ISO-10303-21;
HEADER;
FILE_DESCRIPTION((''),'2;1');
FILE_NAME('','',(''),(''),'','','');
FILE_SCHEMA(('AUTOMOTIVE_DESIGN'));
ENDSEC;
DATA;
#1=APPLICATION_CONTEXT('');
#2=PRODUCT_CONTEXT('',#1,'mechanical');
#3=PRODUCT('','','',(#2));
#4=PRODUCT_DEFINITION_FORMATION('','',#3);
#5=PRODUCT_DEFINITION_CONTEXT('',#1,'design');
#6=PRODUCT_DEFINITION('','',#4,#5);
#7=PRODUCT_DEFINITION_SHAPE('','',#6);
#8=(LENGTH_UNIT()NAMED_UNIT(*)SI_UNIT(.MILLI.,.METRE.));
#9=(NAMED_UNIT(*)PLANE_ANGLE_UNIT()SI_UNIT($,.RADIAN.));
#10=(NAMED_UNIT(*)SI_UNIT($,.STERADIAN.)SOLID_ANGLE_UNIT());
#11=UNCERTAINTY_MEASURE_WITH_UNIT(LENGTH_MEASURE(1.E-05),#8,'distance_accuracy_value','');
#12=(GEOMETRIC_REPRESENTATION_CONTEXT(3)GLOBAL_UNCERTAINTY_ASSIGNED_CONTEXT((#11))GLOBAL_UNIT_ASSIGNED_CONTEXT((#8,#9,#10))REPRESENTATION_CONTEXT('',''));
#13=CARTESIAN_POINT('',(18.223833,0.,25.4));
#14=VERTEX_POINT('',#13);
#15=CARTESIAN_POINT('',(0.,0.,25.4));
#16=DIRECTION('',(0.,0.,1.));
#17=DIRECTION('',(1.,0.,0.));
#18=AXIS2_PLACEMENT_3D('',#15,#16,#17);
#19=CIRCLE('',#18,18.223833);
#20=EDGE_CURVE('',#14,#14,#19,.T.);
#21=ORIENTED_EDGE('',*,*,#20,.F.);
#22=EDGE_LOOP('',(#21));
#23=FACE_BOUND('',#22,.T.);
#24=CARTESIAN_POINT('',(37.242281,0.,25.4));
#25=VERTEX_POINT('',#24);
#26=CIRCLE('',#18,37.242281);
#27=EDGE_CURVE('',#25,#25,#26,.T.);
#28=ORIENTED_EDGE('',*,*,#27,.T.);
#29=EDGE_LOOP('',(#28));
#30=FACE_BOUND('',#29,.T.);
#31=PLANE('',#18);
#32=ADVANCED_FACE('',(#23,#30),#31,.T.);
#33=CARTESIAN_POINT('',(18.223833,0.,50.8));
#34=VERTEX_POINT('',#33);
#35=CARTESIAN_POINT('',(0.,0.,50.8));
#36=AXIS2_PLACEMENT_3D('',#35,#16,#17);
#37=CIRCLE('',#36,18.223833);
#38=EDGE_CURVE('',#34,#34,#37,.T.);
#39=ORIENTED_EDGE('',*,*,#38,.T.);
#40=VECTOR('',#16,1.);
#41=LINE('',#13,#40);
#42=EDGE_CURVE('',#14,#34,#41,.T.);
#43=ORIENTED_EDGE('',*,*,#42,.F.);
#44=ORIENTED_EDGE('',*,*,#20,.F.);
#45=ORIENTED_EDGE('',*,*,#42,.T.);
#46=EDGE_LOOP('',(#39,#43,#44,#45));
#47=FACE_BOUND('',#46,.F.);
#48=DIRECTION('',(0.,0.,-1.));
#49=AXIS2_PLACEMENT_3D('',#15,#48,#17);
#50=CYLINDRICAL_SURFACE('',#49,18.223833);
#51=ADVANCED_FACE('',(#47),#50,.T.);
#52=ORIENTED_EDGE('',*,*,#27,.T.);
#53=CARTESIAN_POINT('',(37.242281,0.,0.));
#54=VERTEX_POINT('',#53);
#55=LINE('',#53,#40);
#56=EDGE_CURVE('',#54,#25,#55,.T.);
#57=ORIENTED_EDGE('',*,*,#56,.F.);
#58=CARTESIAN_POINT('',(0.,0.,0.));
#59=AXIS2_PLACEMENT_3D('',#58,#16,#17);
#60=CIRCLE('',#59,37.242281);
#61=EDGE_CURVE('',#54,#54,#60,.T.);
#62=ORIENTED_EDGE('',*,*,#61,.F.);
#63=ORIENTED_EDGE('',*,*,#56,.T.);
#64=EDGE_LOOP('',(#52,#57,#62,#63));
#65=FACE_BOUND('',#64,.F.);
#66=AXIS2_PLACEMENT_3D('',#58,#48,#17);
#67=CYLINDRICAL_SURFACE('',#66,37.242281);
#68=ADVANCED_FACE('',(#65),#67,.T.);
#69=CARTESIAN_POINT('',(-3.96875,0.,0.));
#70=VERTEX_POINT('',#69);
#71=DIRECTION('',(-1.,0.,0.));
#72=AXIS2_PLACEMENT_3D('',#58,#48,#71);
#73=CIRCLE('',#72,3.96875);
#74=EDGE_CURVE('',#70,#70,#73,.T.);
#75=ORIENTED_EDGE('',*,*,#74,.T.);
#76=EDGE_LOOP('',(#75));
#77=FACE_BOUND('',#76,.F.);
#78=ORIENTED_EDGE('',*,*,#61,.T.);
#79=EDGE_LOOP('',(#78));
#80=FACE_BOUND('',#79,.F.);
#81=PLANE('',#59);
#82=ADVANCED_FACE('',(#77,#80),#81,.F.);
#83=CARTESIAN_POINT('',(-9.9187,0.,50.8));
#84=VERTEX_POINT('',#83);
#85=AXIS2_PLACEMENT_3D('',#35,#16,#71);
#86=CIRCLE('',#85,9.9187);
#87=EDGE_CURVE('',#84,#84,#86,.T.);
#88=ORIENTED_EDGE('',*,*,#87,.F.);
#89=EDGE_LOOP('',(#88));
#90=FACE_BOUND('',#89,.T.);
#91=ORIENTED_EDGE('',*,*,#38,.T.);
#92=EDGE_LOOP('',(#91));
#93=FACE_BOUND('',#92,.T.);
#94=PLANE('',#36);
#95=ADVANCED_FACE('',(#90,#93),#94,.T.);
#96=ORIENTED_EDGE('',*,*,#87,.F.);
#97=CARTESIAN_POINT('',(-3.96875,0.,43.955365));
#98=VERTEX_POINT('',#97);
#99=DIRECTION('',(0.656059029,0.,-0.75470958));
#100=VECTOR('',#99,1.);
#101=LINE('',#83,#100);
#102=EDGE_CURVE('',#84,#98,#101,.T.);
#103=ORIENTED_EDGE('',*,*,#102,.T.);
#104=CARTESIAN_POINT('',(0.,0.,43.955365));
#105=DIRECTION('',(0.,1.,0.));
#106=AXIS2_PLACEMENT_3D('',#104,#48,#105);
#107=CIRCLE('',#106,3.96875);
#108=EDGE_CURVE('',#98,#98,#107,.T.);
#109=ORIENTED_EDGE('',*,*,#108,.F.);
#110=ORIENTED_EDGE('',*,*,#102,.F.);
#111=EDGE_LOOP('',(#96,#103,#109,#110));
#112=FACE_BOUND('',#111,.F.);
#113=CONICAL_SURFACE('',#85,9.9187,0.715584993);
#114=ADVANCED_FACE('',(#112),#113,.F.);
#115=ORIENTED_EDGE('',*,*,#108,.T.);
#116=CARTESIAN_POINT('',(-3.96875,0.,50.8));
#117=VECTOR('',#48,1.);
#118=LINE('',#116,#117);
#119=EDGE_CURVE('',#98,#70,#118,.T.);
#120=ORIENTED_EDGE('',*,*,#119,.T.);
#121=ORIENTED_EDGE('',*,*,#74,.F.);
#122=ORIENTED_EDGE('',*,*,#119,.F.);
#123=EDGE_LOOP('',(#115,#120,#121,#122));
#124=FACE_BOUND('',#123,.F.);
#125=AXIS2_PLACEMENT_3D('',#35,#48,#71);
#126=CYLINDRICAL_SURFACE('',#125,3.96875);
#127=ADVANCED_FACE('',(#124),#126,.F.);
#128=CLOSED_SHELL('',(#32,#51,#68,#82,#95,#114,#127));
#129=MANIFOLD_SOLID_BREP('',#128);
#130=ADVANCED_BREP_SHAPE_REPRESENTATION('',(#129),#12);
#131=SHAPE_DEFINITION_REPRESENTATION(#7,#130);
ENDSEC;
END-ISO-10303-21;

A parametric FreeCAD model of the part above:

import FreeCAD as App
import Part
import Sketcher
from FreeCAD import Vector
Q = App.Units.Quantity

doc = App.newDocument("Part")
params = doc.addObject("Spreadsheet::Sheet", "Params")
for row, (alias, value) in enumerate([
    ("pad1_length", "1 in"),
    ("pad2_length", "1 in"),
    ("sketch3_diameter", "0.3125 in"),
    ("hole_diameter", "0.3125 in"),
    ("hole_csink_diameter", "0.781 in"),
], start=1):
    params.set(f"A{row}", alias)
    params.set(f"B{row}", "=" + value)
    params.setAlias(f"B{row}", alias)

body = doc.addObject("PartDesign::Body", "Body")

# Sketch on XY plane
sketch1 = doc.addObject("Sketcher::SketchObject", "Sketch")
body.addObject(sketch1)
sketch1.AttachmentSupport = (doc.XY_Plane, [""])
sketch1.MapMode = "FlatFace"
sketch1.addGeometry(Part.Circle(Vector(0, 0, 0), Vector(0, 0, 1), 37.242281), False)
sketch1.addConstraint(Sketcher.Constraint("Coincident", 0, 3, -1, 1))
sketch1.addConstraint(Sketcher.Constraint("Diameter", 0, Q("74.484562 mm")))
pad1 = doc.addObject("PartDesign::Pad", "Pad")
body.addObject(pad1)
pad1.Profile = sketch1
pad1.setExpression("Length", "Params.pad1_length")

# Sketch on XY plane
sketch2 = doc.addObject("Sketcher::SketchObject", "Sketch001")
body.addObject(sketch2)
sketch2.AttachmentSupport = (doc.XY_Plane, [""])
sketch2.MapMode = "FlatFace"
sketch2.AttachmentOffset = App.Placement(Vector(0, 0, 1 * 25.4), App.Rotation())
sketch2.addGeometry(Part.Circle(Vector(0, 0, 0), Vector(0, 0, 1), 18.223833), False)
sketch2.addConstraint(Sketcher.Constraint("Coincident", 0, 3, -1, 1))
sketch2.addConstraint(Sketcher.Constraint("Diameter", 0, Q("36.447667 mm")))
pad2 = doc.addObject("PartDesign::Pad", "Pad001")
body.addObject(pad2)
pad2.Profile = sketch2
pad2.setExpression("Length", "Params.pad2_length")

# Sketch on XY plane
sketch3 = doc.addObject("Sketcher::SketchObject", "Sketch002")
body.addObject(sketch3)
sketch3.AttachmentSupport = (doc.XY_Plane, [""])
sketch3.MapMode = "FlatFace"
sketch3.AttachmentOffset = App.Placement(Vector(0, 0, 2 * 25.4), App.Rotation())
sketch3.addGeometry(Part.Circle(Vector(0, 0, 0), Vector(0, 0, 1), 3.96875), False)
sketch3.addConstraint(Sketcher.Constraint("Coincident", 0, 3, -1, 1))
sketch3.addConstraint(Sketcher.Constraint("Diameter", 0, Q("0.3125 in")))
sketch3.setExpression("Constraints[1]", "Params.sketch3_diameter")
doc.recompute()
hole = doc.addObject("PartDesign::Hole", "Hole")
body.addObject(hole)
hole.Profile = sketch3
hole.ThreadType = "None"
hole.setExpression("Diameter", "Params.hole_diameter")
hole.DepthType = "ThroughAll"
hole.HoleCutType = "Countersink"
hole.setExpression("HoleCutDiameter", "Params.hole_csink_diameter")
hole.HoleCutCountersinkAngle = 82

doc.recompute()
